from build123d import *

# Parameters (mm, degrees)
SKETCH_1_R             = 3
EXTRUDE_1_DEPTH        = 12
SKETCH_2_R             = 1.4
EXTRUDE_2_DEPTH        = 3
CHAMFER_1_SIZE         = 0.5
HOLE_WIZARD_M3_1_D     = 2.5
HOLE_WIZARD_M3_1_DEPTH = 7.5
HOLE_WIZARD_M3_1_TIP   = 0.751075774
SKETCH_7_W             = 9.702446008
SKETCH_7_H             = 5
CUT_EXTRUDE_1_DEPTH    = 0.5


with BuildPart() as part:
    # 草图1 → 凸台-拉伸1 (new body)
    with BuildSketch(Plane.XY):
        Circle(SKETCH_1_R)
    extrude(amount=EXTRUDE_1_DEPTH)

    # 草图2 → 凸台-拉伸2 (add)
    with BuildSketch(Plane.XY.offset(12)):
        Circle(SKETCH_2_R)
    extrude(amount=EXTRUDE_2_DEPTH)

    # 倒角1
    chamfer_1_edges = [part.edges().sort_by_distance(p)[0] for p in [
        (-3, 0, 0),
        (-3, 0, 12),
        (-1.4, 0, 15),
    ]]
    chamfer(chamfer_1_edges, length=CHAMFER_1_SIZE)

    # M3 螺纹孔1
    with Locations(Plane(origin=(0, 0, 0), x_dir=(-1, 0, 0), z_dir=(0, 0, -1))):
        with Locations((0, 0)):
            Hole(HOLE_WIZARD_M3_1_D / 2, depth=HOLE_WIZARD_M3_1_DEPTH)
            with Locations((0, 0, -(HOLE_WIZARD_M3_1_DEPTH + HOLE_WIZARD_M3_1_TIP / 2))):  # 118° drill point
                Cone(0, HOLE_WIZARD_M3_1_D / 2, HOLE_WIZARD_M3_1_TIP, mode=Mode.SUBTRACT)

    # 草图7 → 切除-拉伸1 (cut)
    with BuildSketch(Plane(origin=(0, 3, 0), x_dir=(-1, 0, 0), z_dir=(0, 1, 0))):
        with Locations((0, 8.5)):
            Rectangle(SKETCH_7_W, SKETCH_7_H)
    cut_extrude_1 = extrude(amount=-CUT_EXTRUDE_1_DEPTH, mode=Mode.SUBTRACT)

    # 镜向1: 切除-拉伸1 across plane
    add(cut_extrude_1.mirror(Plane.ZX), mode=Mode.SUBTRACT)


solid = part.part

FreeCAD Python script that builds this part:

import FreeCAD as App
import Part
import Sketcher

V = App.Vector


def edges_at(feature, points):
    """Names of the edges that pass closest to the given points."""
    edges = feature.Shape.Edges
    near = lambda p: min(range(len(edges)), key=lambda i: edges[i].distToShape(Part.Vertex(*p))[0])
    return sorted({f"Edge{near(p) + 1}" for p in points})


def add_polygon(sketch, points):
    """Adds a closed chain of lines whose ends are joined by coincident constraints."""
    first, n = sketch.GeometryCount, len(points)
    for a, b in zip(points, points[1:] + points[:1]):
        sketch.addGeometry(Part.LineSegment(App.Vector(*a, 0), App.Vector(*b, 0)), False)
    for i in range(n):
        sketch.addConstraint(Sketcher.Constraint("Coincident", first + i, 2, first + (i + 1) % n, 1))

doc = App.newDocument("Part")
body = doc.addObject("PartDesign::Body", "Body")

# Sketch on XY plane
sketch1 = doc.addObject("Sketcher::SketchObject", "Sketch")
body.addObject(sketch1)
sketch1.AttachmentSupport = (doc.XY_Plane, [""])
sketch1.MapMode = "FlatFace"
sketch1.addGeometry(Part.Circle(V(0, 0, 0), V(0, 0, 1), 3), False)
sketch1.addConstraint(Sketcher.Constraint("Coincident", 0, 3, -1, 1))
sketch1.addConstraint(Sketcher.Constraint("Diameter", 0, 6.0))
pad1 = doc.addObject("PartDesign::Pad", "Pad")
body.addObject(pad1)
pad1.Profile = sketch1
pad1.Length = 12

# Sketch on XY plane
sketch2 = doc.addObject("Sketcher::SketchObject", "Sketch001")
body.addObject(sketch2)
sketch2.AttachmentSupport = (doc.XY_Plane, [""])
sketch2.MapMode = "FlatFace"
sketch2.AttachmentOffset = App.Placement(V(0, 0, 12), App.Rotation())
sketch2.addGeometry(Part.Circle(V(0, 0, 0), V(0, 0, 1), 1.4), False)
sketch2.addConstraint(Sketcher.Constraint("Coincident", 0, 3, -1, 1))
sketch2.addConstraint(Sketcher.Constraint("Diameter", 0, 2.8))
pad2 = doc.addObject("PartDesign::Pad", "Pad001")
body.addObject(pad2)
pad2.Profile = sketch2
pad2.Length = 3
doc.recompute()

chamfer = doc.addObject("PartDesign::Chamfer", "Chamfer")
body.addObject(chamfer)
chamfer.Base = (pad2, edges_at(pad2, [(-3, 0, 0), (-3, 0, 12), (-1.4, 0, 15)]))
chamfer.Size = 0.5

# Sketch on XY plane
sketch3 = doc.addObject("Sketcher::SketchObject", "Sketch002")
body.addObject(sketch3)
sketch3.AttachmentSupport = (doc.XY_Plane, [""])
sketch3.MapMode = "FlatFace"
sketch3.addGeometry(Part.Circle(V(0, 0, 0), V(0, 0, 1), 1.2), False)
sketch3.addConstraint(Sketcher.Constraint("Coincident", 0, 3, -1, 1))
sketch3.addConstraint(Sketcher.Constraint("Diameter", 0, 2.5))
doc.recompute()
hole = doc.addObject("PartDesign::Hole", "Hole")
body.addObject(hole)
hole.Profile = sketch3
hole.ThreadType = "None"
hole.Diameter = 2.5
hole.DepthType = "Dimension"
hole.Depth = 7.5
hole.DrillPoint = "Angled"
hole.DrillPointAngle = 118
hole.Reversed = True

# Sketch on XZ plane
sketch4 = doc.addObject("Sketcher::SketchObject", "Sketch003")
body.addObject(sketch4)
sketch4.AttachmentSupport = (doc.XZ_Plane, [""])
sketch4.MapMode = "FlatFace"
sketch4.AttachmentOffset = App.Placement(V(0, 0, -3), App.Rotation())
add_polygon(sketch4, [(5, 11), (5, 6), (-5, 6), (-5, 11)])  # lines 0-3
sketch4.addConstraint(Sketcher.Constraint("Vertical", 0))
sketch4.addConstraint(Sketcher.Constraint("Horizontal", 1))
sketch4.addConstraint(Sketcher.Constraint("Vertical", 2))
sketch4.addConstraint(Sketcher.Constraint("Horizontal", 3))
sketch4.addConstraint(Sketcher.Constraint("DistanceY", 0, 2, 0, 1, 5.0))
sketch4.addConstraint(Sketcher.Constraint("DistanceY", -1, 1, 0, 2, 6.0))
sketch4.addConstraint(Sketcher.Constraint("DistanceX", 1, 2, 1, 1, 9.702446))
sketch4.addConstraint(Sketcher.Constraint("DistanceX", -1, 1, 0, 2, 4.851223))
pocket1 = doc.addObject("PartDesign::Pocket", "Pocket")
body.addObject(pocket1)
pocket1.Profile = sketch4
pocket1.Length = 0.5
pocket1.Reversed = True
doc.recompute()

mirrored = doc.addObject("PartDesign::Mirrored", "Mirrored")
body.addObject(mirrored)
mirrored.Originals = [pocket1]
mirrored.MirrorPlane = (doc.XZ_Plane, [""])
body.Tip = mirrored

doc.recompute()
